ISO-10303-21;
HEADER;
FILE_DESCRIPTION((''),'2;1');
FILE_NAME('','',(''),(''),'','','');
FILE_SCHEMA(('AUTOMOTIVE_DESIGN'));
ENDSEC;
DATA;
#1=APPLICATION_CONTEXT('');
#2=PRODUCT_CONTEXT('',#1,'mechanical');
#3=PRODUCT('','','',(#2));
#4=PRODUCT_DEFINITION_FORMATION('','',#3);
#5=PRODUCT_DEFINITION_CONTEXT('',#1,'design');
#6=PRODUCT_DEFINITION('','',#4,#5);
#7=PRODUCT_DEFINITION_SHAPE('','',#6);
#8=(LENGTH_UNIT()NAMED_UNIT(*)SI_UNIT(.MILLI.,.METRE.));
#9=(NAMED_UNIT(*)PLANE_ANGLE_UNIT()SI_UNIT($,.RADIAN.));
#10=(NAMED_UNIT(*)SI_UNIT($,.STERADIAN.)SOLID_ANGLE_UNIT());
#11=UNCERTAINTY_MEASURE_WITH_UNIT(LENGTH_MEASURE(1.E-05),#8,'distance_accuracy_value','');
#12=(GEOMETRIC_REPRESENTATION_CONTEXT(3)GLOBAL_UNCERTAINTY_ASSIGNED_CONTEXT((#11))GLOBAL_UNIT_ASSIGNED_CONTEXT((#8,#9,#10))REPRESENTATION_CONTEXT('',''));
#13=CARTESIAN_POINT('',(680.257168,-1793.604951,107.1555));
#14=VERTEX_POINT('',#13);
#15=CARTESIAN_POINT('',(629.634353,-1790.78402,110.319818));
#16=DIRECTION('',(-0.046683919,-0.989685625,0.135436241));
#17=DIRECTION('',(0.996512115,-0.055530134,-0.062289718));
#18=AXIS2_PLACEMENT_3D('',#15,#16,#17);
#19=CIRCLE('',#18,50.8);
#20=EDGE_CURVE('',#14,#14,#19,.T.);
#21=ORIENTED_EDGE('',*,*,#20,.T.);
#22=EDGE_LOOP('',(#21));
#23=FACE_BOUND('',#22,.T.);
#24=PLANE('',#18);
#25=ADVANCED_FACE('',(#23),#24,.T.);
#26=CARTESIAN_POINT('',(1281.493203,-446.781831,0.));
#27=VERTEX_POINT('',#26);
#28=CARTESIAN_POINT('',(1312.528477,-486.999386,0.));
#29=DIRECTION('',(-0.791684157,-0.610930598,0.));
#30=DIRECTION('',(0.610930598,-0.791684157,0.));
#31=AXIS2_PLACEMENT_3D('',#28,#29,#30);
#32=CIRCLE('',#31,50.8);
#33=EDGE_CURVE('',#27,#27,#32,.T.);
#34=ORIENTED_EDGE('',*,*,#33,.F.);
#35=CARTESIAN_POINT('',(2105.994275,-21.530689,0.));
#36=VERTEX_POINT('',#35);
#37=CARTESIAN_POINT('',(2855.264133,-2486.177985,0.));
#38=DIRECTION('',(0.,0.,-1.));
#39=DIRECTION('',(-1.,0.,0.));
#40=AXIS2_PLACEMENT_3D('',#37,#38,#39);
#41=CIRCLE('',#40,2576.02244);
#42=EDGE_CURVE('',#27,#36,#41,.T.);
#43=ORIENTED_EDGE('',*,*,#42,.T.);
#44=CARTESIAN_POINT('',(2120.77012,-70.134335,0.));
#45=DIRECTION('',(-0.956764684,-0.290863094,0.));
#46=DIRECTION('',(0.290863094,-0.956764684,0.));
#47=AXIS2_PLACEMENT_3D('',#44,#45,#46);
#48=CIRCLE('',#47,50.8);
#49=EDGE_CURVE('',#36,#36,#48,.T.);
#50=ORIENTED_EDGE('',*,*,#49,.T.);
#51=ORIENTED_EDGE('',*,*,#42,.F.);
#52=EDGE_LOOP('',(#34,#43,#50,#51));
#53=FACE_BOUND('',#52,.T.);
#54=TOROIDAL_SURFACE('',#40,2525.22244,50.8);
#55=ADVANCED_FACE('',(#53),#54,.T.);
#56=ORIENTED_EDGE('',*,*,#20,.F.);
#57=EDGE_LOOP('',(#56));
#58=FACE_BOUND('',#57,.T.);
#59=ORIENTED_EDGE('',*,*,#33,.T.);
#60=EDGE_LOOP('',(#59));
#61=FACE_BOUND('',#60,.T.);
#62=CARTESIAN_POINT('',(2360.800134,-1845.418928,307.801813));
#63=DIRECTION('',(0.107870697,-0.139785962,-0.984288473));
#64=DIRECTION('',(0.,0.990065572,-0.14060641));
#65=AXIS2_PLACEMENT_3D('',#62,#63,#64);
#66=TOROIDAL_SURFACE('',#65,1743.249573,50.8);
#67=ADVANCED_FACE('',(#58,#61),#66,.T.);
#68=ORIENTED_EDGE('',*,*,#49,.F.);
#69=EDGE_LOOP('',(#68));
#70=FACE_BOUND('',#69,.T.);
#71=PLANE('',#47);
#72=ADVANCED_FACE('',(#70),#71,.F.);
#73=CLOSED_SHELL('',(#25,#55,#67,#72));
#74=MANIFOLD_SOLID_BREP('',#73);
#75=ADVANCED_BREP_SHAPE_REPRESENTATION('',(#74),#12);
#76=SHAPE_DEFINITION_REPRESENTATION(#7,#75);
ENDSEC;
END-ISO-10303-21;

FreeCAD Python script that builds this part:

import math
import FreeCAD as App
import Part
import Sketcher
from FreeCAD import Vector
Q = App.Units.Quantity

doc = App.newDocument("Part")
body = doc.addObject("PartDesign::Body", "Body")

# Sketch on an angled plane
sketch1 = body.newObject("Sketcher::SketchObject", "Sketch")
sketch1.Placement = App.Placement(Vector(1921.832616, 584.250433, 0), App.Rotation(Vector(0, 0, 1), Vector(-0.290863094, 0.956764684, 0), Vector(-0.956764684, -0.290863094, 0), "ZXY"))
sketch1.addGeometry(Part.Circle(Vector(0, -684, 0), Vector(0, 0, 1), 51), False)
sketch1.addConstraint(Sketcher.Constraint("PointOnObject", 0, 3, -2))
sketch1.addConstraint(Sketcher.Constraint("Diameter", 0, Q("4 in")))
sketch1.addConstraint(Sketcher.Constraint("DistanceY", 0, 3, -1, 1, 683.955814))

# Sketch on XY plane
sketch2 = body.newObject("Sketcher::SketchObject", "Sketch001")
sketch2.AttachmentSupport = (doc.getObject("XY_Plane"), [""])
sketch2.MapMode = "FlatFace"
sketch2.addGeometry(Part.ArcOfCircle(Part.Circle(Vector(2855, -2486, 0), Vector(0, 0, 1), 2525), math.radians(107), math.radians(128)), False)
sketch2.addConstraint(Sketcher.Constraint("Radius", 0, 2525.22244))
sketch2.addConstraint(Sketcher.Constraint("DistanceY", 0, 3, 0, 2, 1999.178599))
sketch2.addConstraint(Sketcher.Constraint("DistanceX", -1, 1, 0, 1, 2120.77012))
sketch2.addConstraint(Sketcher.Constraint("DistanceX", -1, 1, 0, 3, 2855.264133))
sketch2.addConstraint(Sketcher.Constraint("DistanceY", 0, 3, -1, 1, 2486.177985))
doc.recompute()

additivepipe = body.newObject("PartDesign::AdditivePipe", "AdditivePipe")
additivepipe.Profile = sketch1
additivepipe.Spine = (sketch2, ["Edge1"])

# Sketch on an angled plane
sketch3 = body.newObject("Sketcher::SketchObject", "Sketch002")
sketch3.Placement = App.Placement(Vector(587.101234, 453.057074, 0), App.Rotation(Vector(0, 0, 1), Vector(-0.610930598, 0.791684157, 0), Vector(-0.791684157, -0.610930598, 0), "ZXY"))
sketch3.addGeometry(Part.Circle(Vector(0, -1187, 0), Vector(0, 0, 1), 51), False)
sketch3.addConstraint(Sketcher.Constraint("PointOnObject", 0, 3, -2))
sketch3.addConstraint(Sketcher.Constraint("Diameter", 0, Q("4 in")))
sketch3.addConstraint(Sketcher.Constraint("DistanceY", 0, 3, -1, 1, 1187.413506))

# Sketch on an angled plane
sketch4 = body.newObject("Sketcher::SketchObject", "Sketch003")
sketch4.Placement = App.Placement(Vector(22.616067, -29.307391, -206.364975), App.Rotation(Vector(0, 0.990065572, -0.14060641), Vector(0.994164932, 0.015167311, 0.106799063), Vector(0.107870697, -0.139785962, -0.984288473), "ZXY"))
sketch4.addGeometry(Part.ArcOfCircle(Part.Circle(Vector(-1870, 2352, 0), Vector(0, 0, 1), 1743), math.radians(-87), math.radians(-37)), False)
sketch4.addConstraint(Sketcher.Constraint("Radius", 0, 1743.249573))
sketch4.addConstraint(Sketcher.Constraint("DistanceX", 0, 1, -1, 1, 1788.505278))
sketch4.addConstraint(Sketcher.Constraint("DistanceX", 0, 3, 0, 2, 1388.203329))
sketch4.addConstraint(Sketcher.Constraint("DistanceX", 0, 3, -1, 1, 1870.364654))
sketch4.addConstraint(Sketcher.Constraint("DistanceY", -1, 1, 0, 3, 2351.907607))
doc.recompute()

additivepipe2 = body.newObject("PartDesign::AdditivePipe", "AdditivePipe001")
additivepipe2.Profile = sketch3
additivepipe2.Spine = (sketch4, ["Edge1"])

doc.recompute()
